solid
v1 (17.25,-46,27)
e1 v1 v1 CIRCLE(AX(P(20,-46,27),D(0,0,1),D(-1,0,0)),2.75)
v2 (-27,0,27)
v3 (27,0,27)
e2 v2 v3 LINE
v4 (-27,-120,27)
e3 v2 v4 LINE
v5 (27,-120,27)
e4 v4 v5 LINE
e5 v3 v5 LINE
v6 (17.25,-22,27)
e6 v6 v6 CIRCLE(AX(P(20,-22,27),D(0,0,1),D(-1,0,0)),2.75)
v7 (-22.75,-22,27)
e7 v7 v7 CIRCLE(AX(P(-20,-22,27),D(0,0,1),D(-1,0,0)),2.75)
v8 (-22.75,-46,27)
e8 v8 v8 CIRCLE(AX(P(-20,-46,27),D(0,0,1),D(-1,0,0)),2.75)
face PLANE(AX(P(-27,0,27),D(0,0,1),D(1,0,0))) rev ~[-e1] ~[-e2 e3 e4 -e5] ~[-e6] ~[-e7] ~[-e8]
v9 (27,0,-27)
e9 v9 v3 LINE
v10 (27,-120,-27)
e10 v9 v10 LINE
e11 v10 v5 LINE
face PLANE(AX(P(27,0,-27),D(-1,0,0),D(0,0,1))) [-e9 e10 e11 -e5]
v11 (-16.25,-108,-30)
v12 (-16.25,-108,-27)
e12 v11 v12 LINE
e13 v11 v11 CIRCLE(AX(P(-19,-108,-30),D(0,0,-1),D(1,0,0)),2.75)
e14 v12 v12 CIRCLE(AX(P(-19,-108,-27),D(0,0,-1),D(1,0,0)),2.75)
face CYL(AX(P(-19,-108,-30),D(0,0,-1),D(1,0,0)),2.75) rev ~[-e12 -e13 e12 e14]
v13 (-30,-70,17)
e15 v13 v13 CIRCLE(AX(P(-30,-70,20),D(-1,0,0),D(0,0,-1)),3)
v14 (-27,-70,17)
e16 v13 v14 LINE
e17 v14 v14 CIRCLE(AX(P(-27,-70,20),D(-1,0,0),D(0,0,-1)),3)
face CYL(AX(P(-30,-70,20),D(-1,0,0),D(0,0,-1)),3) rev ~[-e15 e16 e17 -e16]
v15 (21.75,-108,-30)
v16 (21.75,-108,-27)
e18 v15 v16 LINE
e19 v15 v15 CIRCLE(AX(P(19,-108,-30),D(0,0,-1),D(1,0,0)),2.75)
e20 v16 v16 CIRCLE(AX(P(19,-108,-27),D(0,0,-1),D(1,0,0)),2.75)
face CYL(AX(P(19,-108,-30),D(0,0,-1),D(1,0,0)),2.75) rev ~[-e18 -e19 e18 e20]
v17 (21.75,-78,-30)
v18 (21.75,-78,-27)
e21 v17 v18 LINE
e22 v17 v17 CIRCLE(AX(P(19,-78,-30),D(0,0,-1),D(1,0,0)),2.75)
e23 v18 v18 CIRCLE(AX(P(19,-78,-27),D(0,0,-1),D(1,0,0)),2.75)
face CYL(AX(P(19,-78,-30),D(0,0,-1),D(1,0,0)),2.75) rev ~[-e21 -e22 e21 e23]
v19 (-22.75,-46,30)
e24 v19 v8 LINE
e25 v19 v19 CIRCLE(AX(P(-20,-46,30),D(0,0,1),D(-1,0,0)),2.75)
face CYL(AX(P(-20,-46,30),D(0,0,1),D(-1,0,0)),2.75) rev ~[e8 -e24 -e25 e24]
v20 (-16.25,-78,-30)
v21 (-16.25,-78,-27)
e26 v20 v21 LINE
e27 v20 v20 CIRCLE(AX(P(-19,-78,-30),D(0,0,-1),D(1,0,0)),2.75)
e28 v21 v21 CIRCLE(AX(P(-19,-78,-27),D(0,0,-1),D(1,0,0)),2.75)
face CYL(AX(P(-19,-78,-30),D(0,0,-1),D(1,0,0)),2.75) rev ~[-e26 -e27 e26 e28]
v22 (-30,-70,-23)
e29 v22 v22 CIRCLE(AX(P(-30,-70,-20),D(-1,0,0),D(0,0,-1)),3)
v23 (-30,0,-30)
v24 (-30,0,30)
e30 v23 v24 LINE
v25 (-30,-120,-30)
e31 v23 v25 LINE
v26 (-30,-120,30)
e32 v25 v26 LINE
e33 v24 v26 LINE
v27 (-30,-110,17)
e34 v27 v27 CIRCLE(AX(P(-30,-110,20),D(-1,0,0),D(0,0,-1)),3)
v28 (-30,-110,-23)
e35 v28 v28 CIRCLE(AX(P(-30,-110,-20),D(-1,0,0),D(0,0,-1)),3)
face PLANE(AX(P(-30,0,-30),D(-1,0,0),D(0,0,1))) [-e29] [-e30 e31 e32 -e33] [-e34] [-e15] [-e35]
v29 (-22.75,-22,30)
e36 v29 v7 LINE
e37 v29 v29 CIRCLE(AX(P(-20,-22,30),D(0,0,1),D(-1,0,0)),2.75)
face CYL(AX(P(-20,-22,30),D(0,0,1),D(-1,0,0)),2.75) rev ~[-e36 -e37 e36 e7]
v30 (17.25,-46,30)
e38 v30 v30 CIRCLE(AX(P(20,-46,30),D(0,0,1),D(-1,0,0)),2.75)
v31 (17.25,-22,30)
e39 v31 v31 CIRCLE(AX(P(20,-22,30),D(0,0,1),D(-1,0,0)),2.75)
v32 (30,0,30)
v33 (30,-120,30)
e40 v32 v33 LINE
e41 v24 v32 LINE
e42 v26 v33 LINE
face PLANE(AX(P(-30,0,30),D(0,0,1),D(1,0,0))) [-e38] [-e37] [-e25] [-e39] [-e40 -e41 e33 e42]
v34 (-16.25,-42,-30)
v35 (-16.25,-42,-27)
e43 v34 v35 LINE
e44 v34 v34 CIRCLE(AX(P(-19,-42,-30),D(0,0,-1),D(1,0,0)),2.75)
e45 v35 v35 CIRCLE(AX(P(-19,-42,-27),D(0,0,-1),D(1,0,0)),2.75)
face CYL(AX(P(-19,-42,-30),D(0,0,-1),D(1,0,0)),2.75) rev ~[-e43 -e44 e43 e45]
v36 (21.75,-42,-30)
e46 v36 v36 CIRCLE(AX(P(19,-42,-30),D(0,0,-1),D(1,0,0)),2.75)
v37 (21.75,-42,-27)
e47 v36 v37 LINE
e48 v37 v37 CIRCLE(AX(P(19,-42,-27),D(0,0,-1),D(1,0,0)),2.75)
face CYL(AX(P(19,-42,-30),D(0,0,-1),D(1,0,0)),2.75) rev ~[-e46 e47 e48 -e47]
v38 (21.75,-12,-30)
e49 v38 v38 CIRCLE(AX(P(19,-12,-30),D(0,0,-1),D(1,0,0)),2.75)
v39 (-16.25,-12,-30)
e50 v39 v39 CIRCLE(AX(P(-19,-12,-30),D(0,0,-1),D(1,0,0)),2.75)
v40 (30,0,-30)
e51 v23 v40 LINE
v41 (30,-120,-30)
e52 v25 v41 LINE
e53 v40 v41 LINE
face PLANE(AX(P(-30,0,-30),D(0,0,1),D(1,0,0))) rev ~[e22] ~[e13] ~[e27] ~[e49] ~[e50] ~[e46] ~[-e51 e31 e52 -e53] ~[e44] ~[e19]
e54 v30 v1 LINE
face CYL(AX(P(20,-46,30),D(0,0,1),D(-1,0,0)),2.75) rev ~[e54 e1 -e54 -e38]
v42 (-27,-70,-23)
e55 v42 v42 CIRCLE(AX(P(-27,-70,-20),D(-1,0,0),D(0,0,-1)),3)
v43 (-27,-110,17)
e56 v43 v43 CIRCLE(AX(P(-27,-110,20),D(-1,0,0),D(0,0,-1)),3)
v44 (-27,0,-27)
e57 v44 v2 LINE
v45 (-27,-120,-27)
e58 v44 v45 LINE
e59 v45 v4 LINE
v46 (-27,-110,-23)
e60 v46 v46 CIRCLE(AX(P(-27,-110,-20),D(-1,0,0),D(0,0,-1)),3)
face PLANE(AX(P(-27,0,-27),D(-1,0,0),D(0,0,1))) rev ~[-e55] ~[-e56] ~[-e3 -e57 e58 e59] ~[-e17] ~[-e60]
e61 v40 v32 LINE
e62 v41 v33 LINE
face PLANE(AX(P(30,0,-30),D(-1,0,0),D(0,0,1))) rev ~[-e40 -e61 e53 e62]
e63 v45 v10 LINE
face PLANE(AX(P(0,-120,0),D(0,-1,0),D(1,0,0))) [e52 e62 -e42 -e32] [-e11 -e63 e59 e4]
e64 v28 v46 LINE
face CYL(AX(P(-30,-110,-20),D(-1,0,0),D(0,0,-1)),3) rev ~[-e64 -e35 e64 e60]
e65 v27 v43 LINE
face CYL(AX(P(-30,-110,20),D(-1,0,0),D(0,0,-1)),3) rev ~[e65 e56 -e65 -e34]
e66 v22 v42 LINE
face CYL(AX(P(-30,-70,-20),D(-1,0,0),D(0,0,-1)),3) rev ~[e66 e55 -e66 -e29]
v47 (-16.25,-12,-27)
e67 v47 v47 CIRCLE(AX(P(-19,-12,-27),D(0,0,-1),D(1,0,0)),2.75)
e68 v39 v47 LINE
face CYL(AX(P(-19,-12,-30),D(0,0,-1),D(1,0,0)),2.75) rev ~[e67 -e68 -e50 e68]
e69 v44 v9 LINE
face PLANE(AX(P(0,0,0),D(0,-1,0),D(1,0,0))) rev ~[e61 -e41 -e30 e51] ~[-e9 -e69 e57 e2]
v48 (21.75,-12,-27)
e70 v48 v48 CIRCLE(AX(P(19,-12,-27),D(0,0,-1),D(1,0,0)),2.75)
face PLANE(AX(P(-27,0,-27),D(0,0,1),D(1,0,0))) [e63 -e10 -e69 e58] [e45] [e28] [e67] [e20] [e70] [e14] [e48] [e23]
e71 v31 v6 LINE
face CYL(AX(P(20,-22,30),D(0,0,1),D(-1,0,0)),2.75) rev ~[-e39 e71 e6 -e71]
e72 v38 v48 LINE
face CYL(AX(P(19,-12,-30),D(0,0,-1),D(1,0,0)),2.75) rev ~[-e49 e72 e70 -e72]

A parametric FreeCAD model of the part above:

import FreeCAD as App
import Part
import Sketcher
from FreeCAD import Vector

doc = App.newDocument("Part")
params = doc.addObject("Spreadsheet::Sheet", "Params")
for row, (alias, value) in enumerate([
    ("sketch1_width", "60 mm"),
    ("sketch1_width2", "54 mm"),
    ("pad1_length", "120 mm"),
    ("sketch2_diameter", "5.5 mm"),
    ("pocket1_length", "3 mm"),
    ("sketch3_diameter", "5.5 mm"),
    ("pocket2_length", "3 mm"),
    ("sketch4_diameter", "6 mm"),
    ("pocket3_length", "3 mm"),
], start=1):
    params.set(f"A{row}", alias)
    params.set(f"B{row}", "=" + value)
    params.setAlias(f"B{row}", alias)

body = doc.addObject("PartDesign::Body", "Body")

# Sketch on XZ plane
sketch1 = body.newObject("Sketcher::SketchObject", "Sketch")
sketch1.AttachmentSupport = (doc.getObject("XZ_Plane"), [""])
sketch1.MapMode = "FlatFace"
sketch1.addGeometry([
    Part.LineSegment(Vector(-30, 30, 0), Vector(-30, -30, 0)),  # 0
    Part.LineSegment(Vector(-30, -30, 0), Vector(30, -30, 0)),  # 1
    Part.LineSegment(Vector(30, -30, 0), Vector(30, 30, 0)),  # 2
    Part.LineSegment(Vector(30, 30, 0), Vector(-30, 30, 0)),  # 3
    Part.LineSegment(Vector(27, -27, 0), Vector(-27, -27, 0)),  # 4
    Part.LineSegment(Vector(-27, -27, 0), Vector(-27, 27, 0)),  # 5
    Part.LineSegment(Vector(-27, 27, 0), Vector(27, 27, 0)),  # 6
    Part.LineSegment(Vector(27, 27, 0), Vector(27, -27, 0)),  # 7
], False)
sketch1.addConstraint([
    Sketcher.Constraint("Coincident", 0, 2, 1, 1),
    Sketcher.Constraint("Coincident", 1, 2, 2, 1),
    Sketcher.Constraint("Coincident", 2, 2, 3, 1),
    Sketcher.Constraint("Coincident", 3, 2, 0, 1),
    Sketcher.Constraint("Coincident", 4, 2, 5, 1),
    Sketcher.Constraint("Coincident", 5, 2, 6, 1),
    Sketcher.Constraint("Coincident", 6, 2, 7, 1),
    Sketcher.Constraint("Coincident", 7, 2, 4, 1),
    Sketcher.Constraint("Vertical", 0),
    Sketcher.Constraint("Horizontal", 1),
    Sketcher.Constraint("Vertical", 2),
    Sketcher.Constraint("Horizontal", 3),
    Sketcher.Constraint("Horizontal", 4),
    Sketcher.Constraint("Vertical", 5),
    Sketcher.Constraint("Horizontal", 6),
    Sketcher.Constraint("Vertical", 7),
    Sketcher.Constraint("Symmetric", 0, 2, 2, 2, -1, 1),
    Sketcher.Constraint("Symmetric", 4, 2, 6, 2, -1, 1),
    Sketcher.Constraint("Equal", 3, 0),
    Sketcher.Constraint("Equal", 6, 5),
    Sketcher.Constraint("DistanceX", 1, 1, 1, 2, 60.0),
    Sketcher.Constraint("DistanceX", 4, 2, 4, 1, 54.0),
])
sketch1.setExpression("Constraints[20]", "Params.sketch1_width")
sketch1.setExpression("Constraints[21]", "Params.sketch1_width2")
pad1 = body.newObject("PartDesign::Pad", "Pad")
pad1.Profile = sketch1
pad1.setExpression("Length", "Params.pad1_length")

# Sketch on XY plane
sketch2 = body.newObject("Sketcher::SketchObject", "Sketch001")
sketch2.AttachmentSupport = (doc.getObject("XY_Plane"), [""])
sketch2.MapMode = "FlatFace"
sketch2.AttachmentOffset = App.Placement(Vector(0, 0, -30), App.Rotation())
sketch2.addGeometry([
    Part.Circle(Vector(-19, -108, 0), Vector(0, 0, 1), 2.8),  # 0
    Part.Circle(Vector(-19, -78, 0), Vector(0, 0, 1), 2.8),  # 1
    Part.Circle(Vector(19, -108, 0), Vector(0, 0, 1), 2.8),  # 2
    Part.Circle(Vector(19, -78, 0), Vector(0, 0, 1), 2.8),  # 3
    Part.Circle(Vector(-19, -42, 0), Vector(0, 0, 1), 2.8),  # 4
    Part.Circle(Vector(-19, -12, 0), Vector(0, 0, 1), 2.8),  # 5
    Part.Circle(Vector(19, -42, 0), Vector(0, 0, 1), 2.8),  # 6
    Part.Circle(Vector(19, -12, 0), Vector(0, 0, 1), 2.8),  # 7
], False)
sketch2.addConstraint([
    Sketcher.Constraint("Equal", 0, 1),
    Sketcher.Constraint("Equal", 1, 2),
    Sketcher.Constraint("Equal", 2, 3),
    Sketcher.Constraint("Equal", 3, 4),
    Sketcher.Constraint("Equal", 4, 5),
    Sketcher.Constraint("Equal", 5, 6),
    Sketcher.Constraint("Equal", 6, 7),
    Sketcher.Constraint("Symmetric", 0, 3, 2, 3, -2),
    Sketcher.Constraint("Symmetric", 1, 3, 3, 3, -2),
    Sketcher.Constraint("Symmetric", 4, 3, 6, 3, -2),
    Sketcher.Constraint("Symmetric", 5, 3, 7, 3, -2),
    Sketcher.Constraint("Vertical", 0, 3, 1, 3),
    Sketcher.Constraint("Vertical", 1, 3, 4, 3),
    Sketcher.Constraint("Vertical", 4, 3, 5, 3),
    Sketcher.Constraint("Diameter", 0, 5.5),
    Sketcher.Constraint("DistanceX", 0, 3, -1, 1, 19.0),
    Sketcher.Constraint("DistanceY", 0, 3, -1, 1, 108.0),
    Sketcher.Constraint("DistanceY", 1, 3, -1, 1, 78.0),
    Sketcher.Constraint("DistanceY", 4, 3, -1, 1, 42.0),
    Sketcher.Constraint("DistanceY", 5, 3, -1, 1, 12.0),
])
sketch2.setExpression("Constraints[14]", "Params.sketch2_diameter")
pocket1 = body.newObject("PartDesign::Pocket", "Pocket")
pocket1.Profile = sketch2
pocket1.setExpression("Length", "Params.pocket1_length")
pocket1.Reversed = True

# Sketch on XY plane
sketch3 = body.newObject("Sketcher::SketchObject", "Sketch002")
sketch3.AttachmentSupport = (doc.getObject("XY_Plane"), [""])
sketch3.MapMode = "FlatFace"
sketch3.AttachmentOffset = App.Placement(Vector(0, 0, 30), App.Rotation())
sketch3.addGeometry([
    Part.Circle(Vector(20, -46, 0), Vector(0, 0, 1), 2.8),
    Part.Circle(Vector(20, -22, 0), Vector(0, 0, 1), 2.8),
    Part.Circle(Vector(-20, -46, 0), Vector(0, 0, 1), 2.8),
    Part.Circle(Vector(-20, -22, 0), Vector(0, 0, 1), 2.8),
], False)
sketch3.addConstraint([
    Sketcher.Constraint("Equal", 0, 1),
    Sketcher.Constraint("Equal", 1, 2),
    Sketcher.Constraint("Equal", 2, 3),
    Sketcher.Constraint("Symmetric", 0, 3, 2, 3, -2),
    Sketcher.Constraint("Symmetric", 1, 3, 3, 3, -2),
    Sketcher.Constraint("Vertical", 0, 3, 1, 3),
    Sketcher.Constraint("Diameter", 0, 5.5),
    Sketcher.Constraint("DistanceX", -1, 1, 0, 3, 20.0),
    Sketcher.Constraint("DistanceY", 0, 3, -1, 1, 46.0),
    Sketcher.Constraint("DistanceY", 1, 3, -1, 1, 22.0),
])
sketch3.setExpression("Constraints[6]", "Params.sketch3_diameter")
pocket2 = body.newObject("PartDesign::Pocket", "Pocket001")
pocket2.Profile = sketch3
pocket2.setExpression("Length", "Params.pocket2_length")

# Sketch on YZ plane
sketch4 = body.newObject("Sketcher::SketchObject", "Sketch003")
sketch4.AttachmentSupport = (doc.getObject("YZ_Plane"), [""])
sketch4.MapMode = "FlatFace"
sketch4.AttachmentOffset = App.Placement(Vector(0, 0, -30), App.Rotation())
sketch4.addGeometry([
    Part.Circle(Vector(-110, 20, 0), Vector(0, 0, 1), 3),
    Part.Circle(Vector(-110, -20, 0), Vector(0, 0, 1), 3),
    Part.Circle(Vector(-70, 20, 0), Vector(0, 0, 1), 3),
    Part.Circle(Vector(-70, -20, 0), Vector(0, 0, 1), 3),
], False)
sketch4.addConstraint([
    Sketcher.Constraint("Equal", 0, 1),
    Sketcher.Constraint("Equal", 1, 2),
    Sketcher.Constraint("Equal", 2, 3),
    Sketcher.Constraint("Symmetric", 0, 3, 1, 3, -1),
    Sketcher.Constraint("Symmetric", 2, 3, 3, 3, -1),
    Sketcher.Constraint("Horizontal", 0, 3, 2, 3),
    Sketcher.Constraint("Diameter", 0, 6.0),
    Sketcher.Constraint("DistanceX", 0, 3, -1, 1, 110.0),
    Sketcher.Constraint("DistanceY", -1, 1, 0, 3, 20.0),
    Sketcher.Constraint("DistanceX", 2, 3, -1, 1, 70.0),
])
sketch4.setExpression("Constraints[6]", "Params.sketch4_diameter")
pocket3 = body.newObject("PartDesign::Pocket", "Pocket002")
pocket3.Profile = sketch4
pocket3.setExpression("Length", "Params.pocket3_length")
pocket3.Reversed = True

doc.recompute()
